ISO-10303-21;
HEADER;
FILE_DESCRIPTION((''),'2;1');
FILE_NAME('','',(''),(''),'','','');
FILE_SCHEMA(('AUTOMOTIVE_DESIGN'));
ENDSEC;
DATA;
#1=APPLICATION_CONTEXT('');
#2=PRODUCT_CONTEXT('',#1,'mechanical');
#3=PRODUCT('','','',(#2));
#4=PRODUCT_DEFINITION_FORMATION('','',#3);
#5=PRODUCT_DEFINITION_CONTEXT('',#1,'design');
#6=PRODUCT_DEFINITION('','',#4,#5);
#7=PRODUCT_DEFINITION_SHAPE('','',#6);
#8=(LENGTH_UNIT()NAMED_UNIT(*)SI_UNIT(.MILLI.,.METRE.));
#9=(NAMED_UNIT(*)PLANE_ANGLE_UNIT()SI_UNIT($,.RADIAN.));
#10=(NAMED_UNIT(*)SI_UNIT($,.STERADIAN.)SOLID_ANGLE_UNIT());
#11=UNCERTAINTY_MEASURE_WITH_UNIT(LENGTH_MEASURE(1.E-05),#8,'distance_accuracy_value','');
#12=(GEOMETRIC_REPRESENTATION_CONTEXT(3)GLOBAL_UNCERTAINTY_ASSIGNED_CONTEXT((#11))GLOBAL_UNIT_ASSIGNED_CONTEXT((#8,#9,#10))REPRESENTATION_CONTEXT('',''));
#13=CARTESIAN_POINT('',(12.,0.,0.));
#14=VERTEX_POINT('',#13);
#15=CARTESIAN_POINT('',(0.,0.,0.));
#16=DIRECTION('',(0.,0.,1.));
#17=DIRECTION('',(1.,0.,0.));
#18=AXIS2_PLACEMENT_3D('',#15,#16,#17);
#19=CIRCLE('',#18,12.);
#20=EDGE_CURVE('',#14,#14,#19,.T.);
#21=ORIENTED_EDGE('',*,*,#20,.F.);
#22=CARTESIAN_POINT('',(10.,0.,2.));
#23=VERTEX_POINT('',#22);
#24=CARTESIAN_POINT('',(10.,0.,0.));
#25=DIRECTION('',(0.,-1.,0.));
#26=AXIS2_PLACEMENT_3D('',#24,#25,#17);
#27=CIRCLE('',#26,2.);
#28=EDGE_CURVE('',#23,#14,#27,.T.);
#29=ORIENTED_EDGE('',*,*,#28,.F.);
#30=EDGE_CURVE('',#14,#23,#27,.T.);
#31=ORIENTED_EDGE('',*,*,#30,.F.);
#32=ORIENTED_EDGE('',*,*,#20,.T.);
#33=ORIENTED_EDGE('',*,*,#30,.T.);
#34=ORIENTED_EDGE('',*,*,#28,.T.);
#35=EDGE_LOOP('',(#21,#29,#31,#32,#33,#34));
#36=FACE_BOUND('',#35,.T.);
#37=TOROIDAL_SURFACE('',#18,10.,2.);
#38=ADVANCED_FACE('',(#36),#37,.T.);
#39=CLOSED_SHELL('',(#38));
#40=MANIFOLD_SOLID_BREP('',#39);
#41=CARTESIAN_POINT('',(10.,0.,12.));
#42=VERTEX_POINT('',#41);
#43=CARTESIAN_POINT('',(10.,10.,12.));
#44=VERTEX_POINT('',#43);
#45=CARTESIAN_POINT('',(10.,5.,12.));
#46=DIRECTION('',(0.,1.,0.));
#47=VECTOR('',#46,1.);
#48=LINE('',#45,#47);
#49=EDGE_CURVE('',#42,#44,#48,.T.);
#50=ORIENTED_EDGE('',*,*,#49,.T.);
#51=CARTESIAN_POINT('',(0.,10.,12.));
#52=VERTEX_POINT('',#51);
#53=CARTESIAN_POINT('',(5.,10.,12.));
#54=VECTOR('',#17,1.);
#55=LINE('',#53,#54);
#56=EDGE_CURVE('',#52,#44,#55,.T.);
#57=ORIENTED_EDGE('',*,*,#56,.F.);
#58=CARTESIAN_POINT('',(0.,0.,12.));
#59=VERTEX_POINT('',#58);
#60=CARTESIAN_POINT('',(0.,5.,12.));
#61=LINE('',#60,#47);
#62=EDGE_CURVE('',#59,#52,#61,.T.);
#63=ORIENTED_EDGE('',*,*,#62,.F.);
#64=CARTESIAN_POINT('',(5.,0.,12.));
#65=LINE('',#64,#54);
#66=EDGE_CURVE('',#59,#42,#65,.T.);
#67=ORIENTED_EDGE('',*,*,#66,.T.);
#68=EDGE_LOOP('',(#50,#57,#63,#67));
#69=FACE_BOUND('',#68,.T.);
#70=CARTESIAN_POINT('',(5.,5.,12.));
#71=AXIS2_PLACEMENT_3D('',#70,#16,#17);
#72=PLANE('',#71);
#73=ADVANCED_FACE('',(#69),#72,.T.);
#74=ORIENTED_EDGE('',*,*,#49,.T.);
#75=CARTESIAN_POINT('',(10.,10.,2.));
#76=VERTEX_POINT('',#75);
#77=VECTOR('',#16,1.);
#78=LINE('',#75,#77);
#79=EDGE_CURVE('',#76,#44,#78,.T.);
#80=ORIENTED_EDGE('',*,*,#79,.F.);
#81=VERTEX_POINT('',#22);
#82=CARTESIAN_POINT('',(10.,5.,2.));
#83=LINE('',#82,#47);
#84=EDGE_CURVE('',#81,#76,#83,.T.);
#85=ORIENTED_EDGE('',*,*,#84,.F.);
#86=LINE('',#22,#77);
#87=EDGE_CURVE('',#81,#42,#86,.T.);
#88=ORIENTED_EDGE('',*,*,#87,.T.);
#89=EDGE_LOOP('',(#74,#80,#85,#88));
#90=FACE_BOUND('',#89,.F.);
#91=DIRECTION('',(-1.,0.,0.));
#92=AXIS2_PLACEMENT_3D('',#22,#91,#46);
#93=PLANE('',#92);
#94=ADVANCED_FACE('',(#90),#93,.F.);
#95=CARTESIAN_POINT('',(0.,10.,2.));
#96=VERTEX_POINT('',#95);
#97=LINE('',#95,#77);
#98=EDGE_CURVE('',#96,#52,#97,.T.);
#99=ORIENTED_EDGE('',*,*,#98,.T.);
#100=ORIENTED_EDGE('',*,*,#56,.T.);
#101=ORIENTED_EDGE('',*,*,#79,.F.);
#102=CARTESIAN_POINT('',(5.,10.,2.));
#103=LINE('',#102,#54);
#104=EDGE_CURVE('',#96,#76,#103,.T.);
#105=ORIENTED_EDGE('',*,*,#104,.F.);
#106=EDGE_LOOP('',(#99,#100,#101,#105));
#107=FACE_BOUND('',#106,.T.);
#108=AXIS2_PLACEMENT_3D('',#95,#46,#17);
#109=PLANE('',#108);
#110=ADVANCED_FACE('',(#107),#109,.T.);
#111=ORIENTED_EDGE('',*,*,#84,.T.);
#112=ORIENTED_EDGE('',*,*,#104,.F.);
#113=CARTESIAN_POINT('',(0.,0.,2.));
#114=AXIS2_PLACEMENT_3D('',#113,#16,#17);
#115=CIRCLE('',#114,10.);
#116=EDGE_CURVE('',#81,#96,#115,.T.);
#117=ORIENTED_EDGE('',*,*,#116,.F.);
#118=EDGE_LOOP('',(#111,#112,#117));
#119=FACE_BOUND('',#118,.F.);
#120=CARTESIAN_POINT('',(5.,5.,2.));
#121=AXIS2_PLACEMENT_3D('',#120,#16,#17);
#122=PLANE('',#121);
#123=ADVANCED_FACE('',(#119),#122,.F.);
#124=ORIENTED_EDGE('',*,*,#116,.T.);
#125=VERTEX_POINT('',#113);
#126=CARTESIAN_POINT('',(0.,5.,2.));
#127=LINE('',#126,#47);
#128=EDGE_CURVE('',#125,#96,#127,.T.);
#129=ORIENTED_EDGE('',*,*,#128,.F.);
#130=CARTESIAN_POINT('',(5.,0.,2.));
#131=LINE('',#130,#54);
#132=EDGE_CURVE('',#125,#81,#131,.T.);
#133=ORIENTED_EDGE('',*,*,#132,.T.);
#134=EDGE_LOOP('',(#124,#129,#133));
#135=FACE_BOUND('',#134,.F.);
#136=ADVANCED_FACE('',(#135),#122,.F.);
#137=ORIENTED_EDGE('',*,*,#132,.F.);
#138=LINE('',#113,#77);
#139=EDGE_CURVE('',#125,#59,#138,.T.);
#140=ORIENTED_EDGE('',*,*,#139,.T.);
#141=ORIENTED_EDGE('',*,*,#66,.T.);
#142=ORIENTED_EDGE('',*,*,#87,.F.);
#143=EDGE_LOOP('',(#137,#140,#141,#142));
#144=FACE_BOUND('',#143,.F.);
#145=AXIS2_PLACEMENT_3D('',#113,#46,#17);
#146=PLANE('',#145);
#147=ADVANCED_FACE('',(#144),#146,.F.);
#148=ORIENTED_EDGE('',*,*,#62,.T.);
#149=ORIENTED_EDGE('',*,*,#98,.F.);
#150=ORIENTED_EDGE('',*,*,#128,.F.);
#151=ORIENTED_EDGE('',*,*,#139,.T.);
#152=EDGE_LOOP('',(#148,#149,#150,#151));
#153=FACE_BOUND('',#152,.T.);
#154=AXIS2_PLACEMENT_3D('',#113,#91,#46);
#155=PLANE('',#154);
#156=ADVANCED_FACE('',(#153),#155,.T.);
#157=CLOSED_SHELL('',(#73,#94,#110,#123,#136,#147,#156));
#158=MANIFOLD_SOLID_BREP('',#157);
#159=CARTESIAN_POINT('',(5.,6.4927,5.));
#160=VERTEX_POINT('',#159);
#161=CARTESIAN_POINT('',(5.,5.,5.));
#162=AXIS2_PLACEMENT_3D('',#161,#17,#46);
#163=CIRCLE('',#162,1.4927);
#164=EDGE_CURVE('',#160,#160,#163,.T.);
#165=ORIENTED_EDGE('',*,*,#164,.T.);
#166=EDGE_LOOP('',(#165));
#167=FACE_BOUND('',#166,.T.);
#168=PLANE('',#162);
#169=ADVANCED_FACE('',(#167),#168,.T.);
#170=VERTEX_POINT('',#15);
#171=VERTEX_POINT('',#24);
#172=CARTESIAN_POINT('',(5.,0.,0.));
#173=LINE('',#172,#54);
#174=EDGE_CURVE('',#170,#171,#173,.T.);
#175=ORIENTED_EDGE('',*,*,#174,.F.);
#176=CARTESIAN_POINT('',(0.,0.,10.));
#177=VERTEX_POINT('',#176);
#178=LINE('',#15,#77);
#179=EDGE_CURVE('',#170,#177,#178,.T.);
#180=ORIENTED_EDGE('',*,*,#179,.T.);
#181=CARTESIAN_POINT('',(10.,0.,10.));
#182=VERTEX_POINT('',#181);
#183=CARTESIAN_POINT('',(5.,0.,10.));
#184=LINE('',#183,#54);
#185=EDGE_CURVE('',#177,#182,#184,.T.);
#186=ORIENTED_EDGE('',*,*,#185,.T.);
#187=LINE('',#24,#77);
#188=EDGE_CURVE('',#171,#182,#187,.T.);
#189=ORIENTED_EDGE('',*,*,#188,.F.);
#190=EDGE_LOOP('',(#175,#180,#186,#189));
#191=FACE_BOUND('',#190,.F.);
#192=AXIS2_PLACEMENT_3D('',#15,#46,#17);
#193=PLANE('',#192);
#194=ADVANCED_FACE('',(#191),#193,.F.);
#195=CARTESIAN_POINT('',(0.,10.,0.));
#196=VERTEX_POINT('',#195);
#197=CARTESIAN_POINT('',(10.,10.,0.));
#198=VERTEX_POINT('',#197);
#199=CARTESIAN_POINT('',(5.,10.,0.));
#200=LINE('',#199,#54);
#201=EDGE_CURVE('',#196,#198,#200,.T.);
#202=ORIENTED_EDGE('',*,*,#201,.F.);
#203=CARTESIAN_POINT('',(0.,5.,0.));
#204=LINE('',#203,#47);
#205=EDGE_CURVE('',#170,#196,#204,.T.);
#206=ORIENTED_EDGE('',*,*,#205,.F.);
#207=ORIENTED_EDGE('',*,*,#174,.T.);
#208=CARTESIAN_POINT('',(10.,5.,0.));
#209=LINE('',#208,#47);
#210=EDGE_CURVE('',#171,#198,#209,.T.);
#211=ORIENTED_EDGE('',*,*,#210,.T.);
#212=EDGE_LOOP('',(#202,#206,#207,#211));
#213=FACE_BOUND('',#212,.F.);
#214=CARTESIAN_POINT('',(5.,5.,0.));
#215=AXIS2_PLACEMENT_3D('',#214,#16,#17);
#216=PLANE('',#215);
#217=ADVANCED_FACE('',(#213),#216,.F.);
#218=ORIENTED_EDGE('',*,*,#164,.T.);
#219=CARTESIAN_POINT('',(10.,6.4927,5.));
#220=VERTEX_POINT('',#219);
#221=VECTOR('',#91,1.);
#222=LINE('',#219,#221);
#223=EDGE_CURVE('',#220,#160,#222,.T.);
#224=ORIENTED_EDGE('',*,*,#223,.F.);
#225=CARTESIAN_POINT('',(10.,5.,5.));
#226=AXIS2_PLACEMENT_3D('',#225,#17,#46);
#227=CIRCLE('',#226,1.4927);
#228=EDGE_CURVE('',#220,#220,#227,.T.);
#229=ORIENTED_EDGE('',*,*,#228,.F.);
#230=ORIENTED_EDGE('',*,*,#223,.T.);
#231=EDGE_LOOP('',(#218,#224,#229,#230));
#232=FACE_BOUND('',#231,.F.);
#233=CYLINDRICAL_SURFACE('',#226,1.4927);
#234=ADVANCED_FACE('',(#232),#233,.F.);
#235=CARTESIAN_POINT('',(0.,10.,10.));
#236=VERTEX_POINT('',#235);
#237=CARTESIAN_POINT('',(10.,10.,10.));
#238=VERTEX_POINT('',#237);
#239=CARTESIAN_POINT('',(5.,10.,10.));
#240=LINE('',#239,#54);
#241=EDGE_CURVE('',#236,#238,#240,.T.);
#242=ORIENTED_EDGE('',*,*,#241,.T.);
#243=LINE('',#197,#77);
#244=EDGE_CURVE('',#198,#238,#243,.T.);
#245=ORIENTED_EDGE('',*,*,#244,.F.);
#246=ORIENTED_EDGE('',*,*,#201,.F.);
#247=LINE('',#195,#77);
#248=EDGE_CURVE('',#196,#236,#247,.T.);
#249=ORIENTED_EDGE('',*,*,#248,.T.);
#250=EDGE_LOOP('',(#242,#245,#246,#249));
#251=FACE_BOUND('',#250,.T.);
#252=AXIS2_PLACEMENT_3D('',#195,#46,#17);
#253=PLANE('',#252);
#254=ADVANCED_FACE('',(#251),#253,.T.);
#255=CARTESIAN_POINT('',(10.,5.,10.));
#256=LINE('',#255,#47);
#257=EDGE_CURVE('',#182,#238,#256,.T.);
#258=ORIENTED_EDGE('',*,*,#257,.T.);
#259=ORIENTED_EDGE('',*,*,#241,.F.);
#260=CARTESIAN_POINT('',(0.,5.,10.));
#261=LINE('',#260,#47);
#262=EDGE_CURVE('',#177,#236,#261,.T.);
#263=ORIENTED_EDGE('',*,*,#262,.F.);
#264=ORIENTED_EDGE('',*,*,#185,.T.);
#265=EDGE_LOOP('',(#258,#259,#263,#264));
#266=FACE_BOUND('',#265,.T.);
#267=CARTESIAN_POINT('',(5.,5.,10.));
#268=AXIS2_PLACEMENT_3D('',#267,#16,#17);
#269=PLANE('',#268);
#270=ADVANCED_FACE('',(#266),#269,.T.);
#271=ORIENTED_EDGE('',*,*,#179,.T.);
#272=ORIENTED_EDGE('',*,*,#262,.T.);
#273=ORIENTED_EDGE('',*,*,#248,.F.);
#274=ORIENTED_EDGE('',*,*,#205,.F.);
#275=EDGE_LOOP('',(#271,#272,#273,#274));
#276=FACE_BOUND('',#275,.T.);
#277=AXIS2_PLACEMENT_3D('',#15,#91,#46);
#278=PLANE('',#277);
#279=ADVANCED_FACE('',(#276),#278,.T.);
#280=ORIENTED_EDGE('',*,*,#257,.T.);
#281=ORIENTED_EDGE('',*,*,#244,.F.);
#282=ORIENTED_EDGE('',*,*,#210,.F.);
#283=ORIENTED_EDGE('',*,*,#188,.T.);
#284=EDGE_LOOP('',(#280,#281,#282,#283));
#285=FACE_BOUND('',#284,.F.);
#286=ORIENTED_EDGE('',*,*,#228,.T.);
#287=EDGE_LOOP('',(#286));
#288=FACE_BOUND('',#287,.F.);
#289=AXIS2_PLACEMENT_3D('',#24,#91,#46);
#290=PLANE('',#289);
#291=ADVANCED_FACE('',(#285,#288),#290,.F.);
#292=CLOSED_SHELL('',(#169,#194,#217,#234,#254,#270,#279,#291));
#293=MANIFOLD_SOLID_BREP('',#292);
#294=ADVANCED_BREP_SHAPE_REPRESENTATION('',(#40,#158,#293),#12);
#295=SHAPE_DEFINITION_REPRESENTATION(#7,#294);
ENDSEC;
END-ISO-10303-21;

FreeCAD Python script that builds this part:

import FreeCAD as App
import Part
import Sketcher

V = App.Vector


def add_polygon(sketch, points):
    """Adds a closed chain of lines whose ends are joined by coincident constraints."""
    first, n = sketch.GeometryCount, len(points)
    for a, b in zip(points, points[1:] + points[:1]):
        sketch.addGeometry(Part.LineSegment(App.Vector(*a, 0), App.Vector(*b, 0)), False)
    for i in range(n):
        sketch.addConstraint(Sketcher.Constraint("Coincident", first + i, 2, first + (i + 1) % n, 1))

doc = App.newDocument("Part")
body = doc.addObject("PartDesign::Body", "Body")

sketch1 = doc.addObject("Sketcher::SketchObject", "Sketch")
body.addObject(sketch1)
sketch1.AttachmentSupport = (doc.XZ_Plane, [""])
sketch1.MapMode = "FlatFace"
sketch1.addGeometry(Part.Circle(V(10, 0, 0), V(0, 0, 1), 2), False)
sketch1.addConstraint(Sketcher.Constraint("PointOnObject", 0, 3, -1))
sketch1.addConstraint(Sketcher.Constraint("Diameter", 0, 4.0))
sketch1.addConstraint(Sketcher.Constraint("DistanceX", -1, 1, 0, 3, 10.0))
revolution = doc.addObject("PartDesign::Revolution", "Revolution")
body.addObject(revolution)
revolution.Profile = sketch1
revolution.ReferenceAxis = (sketch1, ["V_Axis"])
revolution.Angle = 360
body2 = doc.addObject("PartDesign::Body", "Body001")

sketch2 = doc.addObject("Sketcher::SketchObject", "Sketch001")
body2.addObject(sketch2)
sketch2.AttachmentSupport = (doc.getObject("XY_Plane001"), [""])
sketch2.MapMode = "FlatFace"
sketch2.AttachmentOffset = App.Placement(V(0, 0, 2), App.Rotation())
add_polygon(sketch2, [(0, 10), (0, 0), (10, 0), (10, 10)])
sketch2.addConstraint(Sketcher.Constraint("Vertical", 0))
sketch2.addConstraint(Sketcher.Constraint("Horizontal", 1))
sketch2.addConstraint(Sketcher.Constraint("Vertical", 2))
sketch2.addConstraint(Sketcher.Constraint("Horizontal", 3))
sketch2.addConstraint(Sketcher.Constraint("Coincident", 0, 2, -1, 1))
sketch2.addConstraint(Sketcher.Constraint("Equal", 3, 0))
sketch2.addConstraint(Sketcher.Constraint("DistanceX", 1, 1, 1, 2, 10.0))
pad1 = doc.addObject("PartDesign::Pad", "Pad")
body2.addObject(pad1)
pad1.Profile = sketch2
pad1.Length = 10
body3 = doc.addObject("PartDesign::Body", "Body002")
body3.AllowCompound = True
doc.recompute()

body3.BaseFeature = body2
doc.recompute()

boolean = doc.addObject("PartDesign::Boolean", "Boolean")
body3.addObject(boolean)
boolean.Type = "Fuse"
boolean.addObjects([body])
body4 = doc.addObject("PartDesign::Body", "Body003")
doc.recompute()

body2.Placement = App.Placement(V(0, 0, -2), App.Rotation(V(0, 0, 1), 0))
boolean2 = doc.addObject("PartDesign::Boolean", "Boolean001")
body4.addObject(boolean2)
boolean2.Type = "Fuse"
boolean2.addObjects([body2])

sketch3 = doc.addObject("Sketcher::SketchObject", "Sketch002")
body4.addObject(sketch3)
sketch3.AttachmentSupport = (doc.getObject("YZ_Plane003"), [""])
sketch3.MapMode = "FlatFace"
sketch3.AttachmentOffset = App.Placement(V(0, 0, 10), App.Rotation())
sketch3.addGeometry(Part.Circle(V(5, 5, 0), V(0, 0, 1), 1.5), False)
sketch3.addConstraint(Sketcher.Constraint("DistanceX", -1, 1, 0, 3, 5.0))
sketch3.addConstraint(Sketcher.Constraint("DistanceY", -1, 1, 0, 3, 5.0))
sketch3.addConstraint(Sketcher.Constraint("Diameter", 0, 2.9854))
pocket1 = doc.addObject("PartDesign::Pocket", "Pocket")
body4.addObject(pocket1)
pocket1.Profile = sketch3
pocket1.Length = 5

doc.recompute()
